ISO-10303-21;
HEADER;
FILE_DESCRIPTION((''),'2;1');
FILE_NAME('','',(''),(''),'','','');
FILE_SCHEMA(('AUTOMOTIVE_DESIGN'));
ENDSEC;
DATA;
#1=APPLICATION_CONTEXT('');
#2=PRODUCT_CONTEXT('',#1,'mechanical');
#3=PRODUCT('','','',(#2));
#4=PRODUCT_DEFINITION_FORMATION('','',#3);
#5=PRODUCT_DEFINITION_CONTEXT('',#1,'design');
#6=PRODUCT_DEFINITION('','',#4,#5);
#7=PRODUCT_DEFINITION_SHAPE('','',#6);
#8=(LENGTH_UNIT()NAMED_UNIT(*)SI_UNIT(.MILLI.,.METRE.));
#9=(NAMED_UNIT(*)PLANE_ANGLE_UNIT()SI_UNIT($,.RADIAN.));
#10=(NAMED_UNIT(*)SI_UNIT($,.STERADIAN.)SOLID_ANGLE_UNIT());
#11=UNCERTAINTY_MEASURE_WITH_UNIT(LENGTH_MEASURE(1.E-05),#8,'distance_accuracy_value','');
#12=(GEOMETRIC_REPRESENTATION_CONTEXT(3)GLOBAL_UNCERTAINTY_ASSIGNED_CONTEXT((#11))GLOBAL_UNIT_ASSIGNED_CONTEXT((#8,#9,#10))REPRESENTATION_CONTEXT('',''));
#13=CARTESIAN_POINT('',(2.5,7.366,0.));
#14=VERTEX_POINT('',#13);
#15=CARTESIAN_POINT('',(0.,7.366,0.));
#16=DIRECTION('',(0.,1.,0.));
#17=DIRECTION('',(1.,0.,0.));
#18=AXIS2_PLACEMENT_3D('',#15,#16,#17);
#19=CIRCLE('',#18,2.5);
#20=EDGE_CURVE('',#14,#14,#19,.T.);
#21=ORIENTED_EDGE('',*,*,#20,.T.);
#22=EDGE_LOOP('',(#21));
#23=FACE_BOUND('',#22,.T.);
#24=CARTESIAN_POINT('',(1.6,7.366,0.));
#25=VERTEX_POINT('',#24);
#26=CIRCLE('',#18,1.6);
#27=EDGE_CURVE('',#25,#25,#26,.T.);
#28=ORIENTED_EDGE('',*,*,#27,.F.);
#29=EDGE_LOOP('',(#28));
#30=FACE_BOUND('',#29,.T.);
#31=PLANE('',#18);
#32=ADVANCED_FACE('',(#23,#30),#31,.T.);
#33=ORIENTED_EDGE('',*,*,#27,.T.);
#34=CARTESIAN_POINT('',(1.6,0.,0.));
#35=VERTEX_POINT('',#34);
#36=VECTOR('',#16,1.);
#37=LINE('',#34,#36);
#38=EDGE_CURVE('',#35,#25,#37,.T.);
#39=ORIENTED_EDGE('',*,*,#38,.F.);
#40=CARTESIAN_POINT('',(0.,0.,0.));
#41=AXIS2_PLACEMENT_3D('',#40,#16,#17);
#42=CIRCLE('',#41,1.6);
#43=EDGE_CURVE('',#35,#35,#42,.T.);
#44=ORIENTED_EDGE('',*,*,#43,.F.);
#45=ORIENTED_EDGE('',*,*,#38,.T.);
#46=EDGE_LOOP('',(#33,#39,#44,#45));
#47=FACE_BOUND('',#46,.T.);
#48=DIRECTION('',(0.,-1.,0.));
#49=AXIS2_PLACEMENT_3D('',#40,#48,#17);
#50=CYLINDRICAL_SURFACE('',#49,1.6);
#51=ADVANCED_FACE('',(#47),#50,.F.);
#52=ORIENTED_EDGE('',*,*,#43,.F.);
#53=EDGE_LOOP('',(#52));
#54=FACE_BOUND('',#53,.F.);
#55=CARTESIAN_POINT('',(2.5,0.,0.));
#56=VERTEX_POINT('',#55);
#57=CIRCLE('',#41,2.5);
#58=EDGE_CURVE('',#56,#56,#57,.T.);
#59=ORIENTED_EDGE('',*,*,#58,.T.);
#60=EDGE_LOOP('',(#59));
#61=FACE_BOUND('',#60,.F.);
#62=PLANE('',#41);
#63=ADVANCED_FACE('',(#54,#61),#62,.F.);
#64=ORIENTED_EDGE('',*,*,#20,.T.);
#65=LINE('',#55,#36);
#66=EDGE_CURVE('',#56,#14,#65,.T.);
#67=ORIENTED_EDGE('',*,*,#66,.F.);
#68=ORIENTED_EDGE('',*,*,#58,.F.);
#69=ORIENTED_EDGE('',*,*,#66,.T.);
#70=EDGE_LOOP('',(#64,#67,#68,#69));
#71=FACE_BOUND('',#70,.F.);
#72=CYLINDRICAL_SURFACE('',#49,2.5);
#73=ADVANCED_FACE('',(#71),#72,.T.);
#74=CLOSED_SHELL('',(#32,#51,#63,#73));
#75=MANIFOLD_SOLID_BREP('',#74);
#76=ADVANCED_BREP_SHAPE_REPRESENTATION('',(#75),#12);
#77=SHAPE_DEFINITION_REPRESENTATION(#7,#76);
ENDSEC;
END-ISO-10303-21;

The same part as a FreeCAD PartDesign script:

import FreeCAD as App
import Part
import Sketcher
Q = App.Units.Quantity

doc = App.newDocument("Part")
body = doc.addObject("PartDesign::Body", "Body")

# Sketch on XZ plane
sketch1 = body.newObject("Sketcher::SketchObject", "Sketch")
sketch1.AttachmentSupport = (doc.getObject("XZ_Plane"), [""])
sketch1.MapMode = "FlatFace"
sketch1.addGeometry([
    Part.Circle(App.Vector(0, 0, 0), App.Vector(0, 0, 1), 2.5),
    Part.Circle(App.Vector(0, 0, 0), App.Vector(0, 0, 1), 1.6),
], False)
sketch1.addConstraint([
    Sketcher.Constraint("Coincident", 0, 3, -1, 1),
    Sketcher.Constraint("Coincident", 1, 3, -1, 1),
    Sketcher.Constraint("Diameter", 0, Q("5 mm")),
    Sketcher.Constraint("Diameter", 1, Q("3.2 mm")),
])
pad1 = body.newObject("PartDesign::Pad", "Pad")
pad1.Profile = sketch1
pad1.Length = 7.366
pad1.Reversed = True

doc.recompute()
